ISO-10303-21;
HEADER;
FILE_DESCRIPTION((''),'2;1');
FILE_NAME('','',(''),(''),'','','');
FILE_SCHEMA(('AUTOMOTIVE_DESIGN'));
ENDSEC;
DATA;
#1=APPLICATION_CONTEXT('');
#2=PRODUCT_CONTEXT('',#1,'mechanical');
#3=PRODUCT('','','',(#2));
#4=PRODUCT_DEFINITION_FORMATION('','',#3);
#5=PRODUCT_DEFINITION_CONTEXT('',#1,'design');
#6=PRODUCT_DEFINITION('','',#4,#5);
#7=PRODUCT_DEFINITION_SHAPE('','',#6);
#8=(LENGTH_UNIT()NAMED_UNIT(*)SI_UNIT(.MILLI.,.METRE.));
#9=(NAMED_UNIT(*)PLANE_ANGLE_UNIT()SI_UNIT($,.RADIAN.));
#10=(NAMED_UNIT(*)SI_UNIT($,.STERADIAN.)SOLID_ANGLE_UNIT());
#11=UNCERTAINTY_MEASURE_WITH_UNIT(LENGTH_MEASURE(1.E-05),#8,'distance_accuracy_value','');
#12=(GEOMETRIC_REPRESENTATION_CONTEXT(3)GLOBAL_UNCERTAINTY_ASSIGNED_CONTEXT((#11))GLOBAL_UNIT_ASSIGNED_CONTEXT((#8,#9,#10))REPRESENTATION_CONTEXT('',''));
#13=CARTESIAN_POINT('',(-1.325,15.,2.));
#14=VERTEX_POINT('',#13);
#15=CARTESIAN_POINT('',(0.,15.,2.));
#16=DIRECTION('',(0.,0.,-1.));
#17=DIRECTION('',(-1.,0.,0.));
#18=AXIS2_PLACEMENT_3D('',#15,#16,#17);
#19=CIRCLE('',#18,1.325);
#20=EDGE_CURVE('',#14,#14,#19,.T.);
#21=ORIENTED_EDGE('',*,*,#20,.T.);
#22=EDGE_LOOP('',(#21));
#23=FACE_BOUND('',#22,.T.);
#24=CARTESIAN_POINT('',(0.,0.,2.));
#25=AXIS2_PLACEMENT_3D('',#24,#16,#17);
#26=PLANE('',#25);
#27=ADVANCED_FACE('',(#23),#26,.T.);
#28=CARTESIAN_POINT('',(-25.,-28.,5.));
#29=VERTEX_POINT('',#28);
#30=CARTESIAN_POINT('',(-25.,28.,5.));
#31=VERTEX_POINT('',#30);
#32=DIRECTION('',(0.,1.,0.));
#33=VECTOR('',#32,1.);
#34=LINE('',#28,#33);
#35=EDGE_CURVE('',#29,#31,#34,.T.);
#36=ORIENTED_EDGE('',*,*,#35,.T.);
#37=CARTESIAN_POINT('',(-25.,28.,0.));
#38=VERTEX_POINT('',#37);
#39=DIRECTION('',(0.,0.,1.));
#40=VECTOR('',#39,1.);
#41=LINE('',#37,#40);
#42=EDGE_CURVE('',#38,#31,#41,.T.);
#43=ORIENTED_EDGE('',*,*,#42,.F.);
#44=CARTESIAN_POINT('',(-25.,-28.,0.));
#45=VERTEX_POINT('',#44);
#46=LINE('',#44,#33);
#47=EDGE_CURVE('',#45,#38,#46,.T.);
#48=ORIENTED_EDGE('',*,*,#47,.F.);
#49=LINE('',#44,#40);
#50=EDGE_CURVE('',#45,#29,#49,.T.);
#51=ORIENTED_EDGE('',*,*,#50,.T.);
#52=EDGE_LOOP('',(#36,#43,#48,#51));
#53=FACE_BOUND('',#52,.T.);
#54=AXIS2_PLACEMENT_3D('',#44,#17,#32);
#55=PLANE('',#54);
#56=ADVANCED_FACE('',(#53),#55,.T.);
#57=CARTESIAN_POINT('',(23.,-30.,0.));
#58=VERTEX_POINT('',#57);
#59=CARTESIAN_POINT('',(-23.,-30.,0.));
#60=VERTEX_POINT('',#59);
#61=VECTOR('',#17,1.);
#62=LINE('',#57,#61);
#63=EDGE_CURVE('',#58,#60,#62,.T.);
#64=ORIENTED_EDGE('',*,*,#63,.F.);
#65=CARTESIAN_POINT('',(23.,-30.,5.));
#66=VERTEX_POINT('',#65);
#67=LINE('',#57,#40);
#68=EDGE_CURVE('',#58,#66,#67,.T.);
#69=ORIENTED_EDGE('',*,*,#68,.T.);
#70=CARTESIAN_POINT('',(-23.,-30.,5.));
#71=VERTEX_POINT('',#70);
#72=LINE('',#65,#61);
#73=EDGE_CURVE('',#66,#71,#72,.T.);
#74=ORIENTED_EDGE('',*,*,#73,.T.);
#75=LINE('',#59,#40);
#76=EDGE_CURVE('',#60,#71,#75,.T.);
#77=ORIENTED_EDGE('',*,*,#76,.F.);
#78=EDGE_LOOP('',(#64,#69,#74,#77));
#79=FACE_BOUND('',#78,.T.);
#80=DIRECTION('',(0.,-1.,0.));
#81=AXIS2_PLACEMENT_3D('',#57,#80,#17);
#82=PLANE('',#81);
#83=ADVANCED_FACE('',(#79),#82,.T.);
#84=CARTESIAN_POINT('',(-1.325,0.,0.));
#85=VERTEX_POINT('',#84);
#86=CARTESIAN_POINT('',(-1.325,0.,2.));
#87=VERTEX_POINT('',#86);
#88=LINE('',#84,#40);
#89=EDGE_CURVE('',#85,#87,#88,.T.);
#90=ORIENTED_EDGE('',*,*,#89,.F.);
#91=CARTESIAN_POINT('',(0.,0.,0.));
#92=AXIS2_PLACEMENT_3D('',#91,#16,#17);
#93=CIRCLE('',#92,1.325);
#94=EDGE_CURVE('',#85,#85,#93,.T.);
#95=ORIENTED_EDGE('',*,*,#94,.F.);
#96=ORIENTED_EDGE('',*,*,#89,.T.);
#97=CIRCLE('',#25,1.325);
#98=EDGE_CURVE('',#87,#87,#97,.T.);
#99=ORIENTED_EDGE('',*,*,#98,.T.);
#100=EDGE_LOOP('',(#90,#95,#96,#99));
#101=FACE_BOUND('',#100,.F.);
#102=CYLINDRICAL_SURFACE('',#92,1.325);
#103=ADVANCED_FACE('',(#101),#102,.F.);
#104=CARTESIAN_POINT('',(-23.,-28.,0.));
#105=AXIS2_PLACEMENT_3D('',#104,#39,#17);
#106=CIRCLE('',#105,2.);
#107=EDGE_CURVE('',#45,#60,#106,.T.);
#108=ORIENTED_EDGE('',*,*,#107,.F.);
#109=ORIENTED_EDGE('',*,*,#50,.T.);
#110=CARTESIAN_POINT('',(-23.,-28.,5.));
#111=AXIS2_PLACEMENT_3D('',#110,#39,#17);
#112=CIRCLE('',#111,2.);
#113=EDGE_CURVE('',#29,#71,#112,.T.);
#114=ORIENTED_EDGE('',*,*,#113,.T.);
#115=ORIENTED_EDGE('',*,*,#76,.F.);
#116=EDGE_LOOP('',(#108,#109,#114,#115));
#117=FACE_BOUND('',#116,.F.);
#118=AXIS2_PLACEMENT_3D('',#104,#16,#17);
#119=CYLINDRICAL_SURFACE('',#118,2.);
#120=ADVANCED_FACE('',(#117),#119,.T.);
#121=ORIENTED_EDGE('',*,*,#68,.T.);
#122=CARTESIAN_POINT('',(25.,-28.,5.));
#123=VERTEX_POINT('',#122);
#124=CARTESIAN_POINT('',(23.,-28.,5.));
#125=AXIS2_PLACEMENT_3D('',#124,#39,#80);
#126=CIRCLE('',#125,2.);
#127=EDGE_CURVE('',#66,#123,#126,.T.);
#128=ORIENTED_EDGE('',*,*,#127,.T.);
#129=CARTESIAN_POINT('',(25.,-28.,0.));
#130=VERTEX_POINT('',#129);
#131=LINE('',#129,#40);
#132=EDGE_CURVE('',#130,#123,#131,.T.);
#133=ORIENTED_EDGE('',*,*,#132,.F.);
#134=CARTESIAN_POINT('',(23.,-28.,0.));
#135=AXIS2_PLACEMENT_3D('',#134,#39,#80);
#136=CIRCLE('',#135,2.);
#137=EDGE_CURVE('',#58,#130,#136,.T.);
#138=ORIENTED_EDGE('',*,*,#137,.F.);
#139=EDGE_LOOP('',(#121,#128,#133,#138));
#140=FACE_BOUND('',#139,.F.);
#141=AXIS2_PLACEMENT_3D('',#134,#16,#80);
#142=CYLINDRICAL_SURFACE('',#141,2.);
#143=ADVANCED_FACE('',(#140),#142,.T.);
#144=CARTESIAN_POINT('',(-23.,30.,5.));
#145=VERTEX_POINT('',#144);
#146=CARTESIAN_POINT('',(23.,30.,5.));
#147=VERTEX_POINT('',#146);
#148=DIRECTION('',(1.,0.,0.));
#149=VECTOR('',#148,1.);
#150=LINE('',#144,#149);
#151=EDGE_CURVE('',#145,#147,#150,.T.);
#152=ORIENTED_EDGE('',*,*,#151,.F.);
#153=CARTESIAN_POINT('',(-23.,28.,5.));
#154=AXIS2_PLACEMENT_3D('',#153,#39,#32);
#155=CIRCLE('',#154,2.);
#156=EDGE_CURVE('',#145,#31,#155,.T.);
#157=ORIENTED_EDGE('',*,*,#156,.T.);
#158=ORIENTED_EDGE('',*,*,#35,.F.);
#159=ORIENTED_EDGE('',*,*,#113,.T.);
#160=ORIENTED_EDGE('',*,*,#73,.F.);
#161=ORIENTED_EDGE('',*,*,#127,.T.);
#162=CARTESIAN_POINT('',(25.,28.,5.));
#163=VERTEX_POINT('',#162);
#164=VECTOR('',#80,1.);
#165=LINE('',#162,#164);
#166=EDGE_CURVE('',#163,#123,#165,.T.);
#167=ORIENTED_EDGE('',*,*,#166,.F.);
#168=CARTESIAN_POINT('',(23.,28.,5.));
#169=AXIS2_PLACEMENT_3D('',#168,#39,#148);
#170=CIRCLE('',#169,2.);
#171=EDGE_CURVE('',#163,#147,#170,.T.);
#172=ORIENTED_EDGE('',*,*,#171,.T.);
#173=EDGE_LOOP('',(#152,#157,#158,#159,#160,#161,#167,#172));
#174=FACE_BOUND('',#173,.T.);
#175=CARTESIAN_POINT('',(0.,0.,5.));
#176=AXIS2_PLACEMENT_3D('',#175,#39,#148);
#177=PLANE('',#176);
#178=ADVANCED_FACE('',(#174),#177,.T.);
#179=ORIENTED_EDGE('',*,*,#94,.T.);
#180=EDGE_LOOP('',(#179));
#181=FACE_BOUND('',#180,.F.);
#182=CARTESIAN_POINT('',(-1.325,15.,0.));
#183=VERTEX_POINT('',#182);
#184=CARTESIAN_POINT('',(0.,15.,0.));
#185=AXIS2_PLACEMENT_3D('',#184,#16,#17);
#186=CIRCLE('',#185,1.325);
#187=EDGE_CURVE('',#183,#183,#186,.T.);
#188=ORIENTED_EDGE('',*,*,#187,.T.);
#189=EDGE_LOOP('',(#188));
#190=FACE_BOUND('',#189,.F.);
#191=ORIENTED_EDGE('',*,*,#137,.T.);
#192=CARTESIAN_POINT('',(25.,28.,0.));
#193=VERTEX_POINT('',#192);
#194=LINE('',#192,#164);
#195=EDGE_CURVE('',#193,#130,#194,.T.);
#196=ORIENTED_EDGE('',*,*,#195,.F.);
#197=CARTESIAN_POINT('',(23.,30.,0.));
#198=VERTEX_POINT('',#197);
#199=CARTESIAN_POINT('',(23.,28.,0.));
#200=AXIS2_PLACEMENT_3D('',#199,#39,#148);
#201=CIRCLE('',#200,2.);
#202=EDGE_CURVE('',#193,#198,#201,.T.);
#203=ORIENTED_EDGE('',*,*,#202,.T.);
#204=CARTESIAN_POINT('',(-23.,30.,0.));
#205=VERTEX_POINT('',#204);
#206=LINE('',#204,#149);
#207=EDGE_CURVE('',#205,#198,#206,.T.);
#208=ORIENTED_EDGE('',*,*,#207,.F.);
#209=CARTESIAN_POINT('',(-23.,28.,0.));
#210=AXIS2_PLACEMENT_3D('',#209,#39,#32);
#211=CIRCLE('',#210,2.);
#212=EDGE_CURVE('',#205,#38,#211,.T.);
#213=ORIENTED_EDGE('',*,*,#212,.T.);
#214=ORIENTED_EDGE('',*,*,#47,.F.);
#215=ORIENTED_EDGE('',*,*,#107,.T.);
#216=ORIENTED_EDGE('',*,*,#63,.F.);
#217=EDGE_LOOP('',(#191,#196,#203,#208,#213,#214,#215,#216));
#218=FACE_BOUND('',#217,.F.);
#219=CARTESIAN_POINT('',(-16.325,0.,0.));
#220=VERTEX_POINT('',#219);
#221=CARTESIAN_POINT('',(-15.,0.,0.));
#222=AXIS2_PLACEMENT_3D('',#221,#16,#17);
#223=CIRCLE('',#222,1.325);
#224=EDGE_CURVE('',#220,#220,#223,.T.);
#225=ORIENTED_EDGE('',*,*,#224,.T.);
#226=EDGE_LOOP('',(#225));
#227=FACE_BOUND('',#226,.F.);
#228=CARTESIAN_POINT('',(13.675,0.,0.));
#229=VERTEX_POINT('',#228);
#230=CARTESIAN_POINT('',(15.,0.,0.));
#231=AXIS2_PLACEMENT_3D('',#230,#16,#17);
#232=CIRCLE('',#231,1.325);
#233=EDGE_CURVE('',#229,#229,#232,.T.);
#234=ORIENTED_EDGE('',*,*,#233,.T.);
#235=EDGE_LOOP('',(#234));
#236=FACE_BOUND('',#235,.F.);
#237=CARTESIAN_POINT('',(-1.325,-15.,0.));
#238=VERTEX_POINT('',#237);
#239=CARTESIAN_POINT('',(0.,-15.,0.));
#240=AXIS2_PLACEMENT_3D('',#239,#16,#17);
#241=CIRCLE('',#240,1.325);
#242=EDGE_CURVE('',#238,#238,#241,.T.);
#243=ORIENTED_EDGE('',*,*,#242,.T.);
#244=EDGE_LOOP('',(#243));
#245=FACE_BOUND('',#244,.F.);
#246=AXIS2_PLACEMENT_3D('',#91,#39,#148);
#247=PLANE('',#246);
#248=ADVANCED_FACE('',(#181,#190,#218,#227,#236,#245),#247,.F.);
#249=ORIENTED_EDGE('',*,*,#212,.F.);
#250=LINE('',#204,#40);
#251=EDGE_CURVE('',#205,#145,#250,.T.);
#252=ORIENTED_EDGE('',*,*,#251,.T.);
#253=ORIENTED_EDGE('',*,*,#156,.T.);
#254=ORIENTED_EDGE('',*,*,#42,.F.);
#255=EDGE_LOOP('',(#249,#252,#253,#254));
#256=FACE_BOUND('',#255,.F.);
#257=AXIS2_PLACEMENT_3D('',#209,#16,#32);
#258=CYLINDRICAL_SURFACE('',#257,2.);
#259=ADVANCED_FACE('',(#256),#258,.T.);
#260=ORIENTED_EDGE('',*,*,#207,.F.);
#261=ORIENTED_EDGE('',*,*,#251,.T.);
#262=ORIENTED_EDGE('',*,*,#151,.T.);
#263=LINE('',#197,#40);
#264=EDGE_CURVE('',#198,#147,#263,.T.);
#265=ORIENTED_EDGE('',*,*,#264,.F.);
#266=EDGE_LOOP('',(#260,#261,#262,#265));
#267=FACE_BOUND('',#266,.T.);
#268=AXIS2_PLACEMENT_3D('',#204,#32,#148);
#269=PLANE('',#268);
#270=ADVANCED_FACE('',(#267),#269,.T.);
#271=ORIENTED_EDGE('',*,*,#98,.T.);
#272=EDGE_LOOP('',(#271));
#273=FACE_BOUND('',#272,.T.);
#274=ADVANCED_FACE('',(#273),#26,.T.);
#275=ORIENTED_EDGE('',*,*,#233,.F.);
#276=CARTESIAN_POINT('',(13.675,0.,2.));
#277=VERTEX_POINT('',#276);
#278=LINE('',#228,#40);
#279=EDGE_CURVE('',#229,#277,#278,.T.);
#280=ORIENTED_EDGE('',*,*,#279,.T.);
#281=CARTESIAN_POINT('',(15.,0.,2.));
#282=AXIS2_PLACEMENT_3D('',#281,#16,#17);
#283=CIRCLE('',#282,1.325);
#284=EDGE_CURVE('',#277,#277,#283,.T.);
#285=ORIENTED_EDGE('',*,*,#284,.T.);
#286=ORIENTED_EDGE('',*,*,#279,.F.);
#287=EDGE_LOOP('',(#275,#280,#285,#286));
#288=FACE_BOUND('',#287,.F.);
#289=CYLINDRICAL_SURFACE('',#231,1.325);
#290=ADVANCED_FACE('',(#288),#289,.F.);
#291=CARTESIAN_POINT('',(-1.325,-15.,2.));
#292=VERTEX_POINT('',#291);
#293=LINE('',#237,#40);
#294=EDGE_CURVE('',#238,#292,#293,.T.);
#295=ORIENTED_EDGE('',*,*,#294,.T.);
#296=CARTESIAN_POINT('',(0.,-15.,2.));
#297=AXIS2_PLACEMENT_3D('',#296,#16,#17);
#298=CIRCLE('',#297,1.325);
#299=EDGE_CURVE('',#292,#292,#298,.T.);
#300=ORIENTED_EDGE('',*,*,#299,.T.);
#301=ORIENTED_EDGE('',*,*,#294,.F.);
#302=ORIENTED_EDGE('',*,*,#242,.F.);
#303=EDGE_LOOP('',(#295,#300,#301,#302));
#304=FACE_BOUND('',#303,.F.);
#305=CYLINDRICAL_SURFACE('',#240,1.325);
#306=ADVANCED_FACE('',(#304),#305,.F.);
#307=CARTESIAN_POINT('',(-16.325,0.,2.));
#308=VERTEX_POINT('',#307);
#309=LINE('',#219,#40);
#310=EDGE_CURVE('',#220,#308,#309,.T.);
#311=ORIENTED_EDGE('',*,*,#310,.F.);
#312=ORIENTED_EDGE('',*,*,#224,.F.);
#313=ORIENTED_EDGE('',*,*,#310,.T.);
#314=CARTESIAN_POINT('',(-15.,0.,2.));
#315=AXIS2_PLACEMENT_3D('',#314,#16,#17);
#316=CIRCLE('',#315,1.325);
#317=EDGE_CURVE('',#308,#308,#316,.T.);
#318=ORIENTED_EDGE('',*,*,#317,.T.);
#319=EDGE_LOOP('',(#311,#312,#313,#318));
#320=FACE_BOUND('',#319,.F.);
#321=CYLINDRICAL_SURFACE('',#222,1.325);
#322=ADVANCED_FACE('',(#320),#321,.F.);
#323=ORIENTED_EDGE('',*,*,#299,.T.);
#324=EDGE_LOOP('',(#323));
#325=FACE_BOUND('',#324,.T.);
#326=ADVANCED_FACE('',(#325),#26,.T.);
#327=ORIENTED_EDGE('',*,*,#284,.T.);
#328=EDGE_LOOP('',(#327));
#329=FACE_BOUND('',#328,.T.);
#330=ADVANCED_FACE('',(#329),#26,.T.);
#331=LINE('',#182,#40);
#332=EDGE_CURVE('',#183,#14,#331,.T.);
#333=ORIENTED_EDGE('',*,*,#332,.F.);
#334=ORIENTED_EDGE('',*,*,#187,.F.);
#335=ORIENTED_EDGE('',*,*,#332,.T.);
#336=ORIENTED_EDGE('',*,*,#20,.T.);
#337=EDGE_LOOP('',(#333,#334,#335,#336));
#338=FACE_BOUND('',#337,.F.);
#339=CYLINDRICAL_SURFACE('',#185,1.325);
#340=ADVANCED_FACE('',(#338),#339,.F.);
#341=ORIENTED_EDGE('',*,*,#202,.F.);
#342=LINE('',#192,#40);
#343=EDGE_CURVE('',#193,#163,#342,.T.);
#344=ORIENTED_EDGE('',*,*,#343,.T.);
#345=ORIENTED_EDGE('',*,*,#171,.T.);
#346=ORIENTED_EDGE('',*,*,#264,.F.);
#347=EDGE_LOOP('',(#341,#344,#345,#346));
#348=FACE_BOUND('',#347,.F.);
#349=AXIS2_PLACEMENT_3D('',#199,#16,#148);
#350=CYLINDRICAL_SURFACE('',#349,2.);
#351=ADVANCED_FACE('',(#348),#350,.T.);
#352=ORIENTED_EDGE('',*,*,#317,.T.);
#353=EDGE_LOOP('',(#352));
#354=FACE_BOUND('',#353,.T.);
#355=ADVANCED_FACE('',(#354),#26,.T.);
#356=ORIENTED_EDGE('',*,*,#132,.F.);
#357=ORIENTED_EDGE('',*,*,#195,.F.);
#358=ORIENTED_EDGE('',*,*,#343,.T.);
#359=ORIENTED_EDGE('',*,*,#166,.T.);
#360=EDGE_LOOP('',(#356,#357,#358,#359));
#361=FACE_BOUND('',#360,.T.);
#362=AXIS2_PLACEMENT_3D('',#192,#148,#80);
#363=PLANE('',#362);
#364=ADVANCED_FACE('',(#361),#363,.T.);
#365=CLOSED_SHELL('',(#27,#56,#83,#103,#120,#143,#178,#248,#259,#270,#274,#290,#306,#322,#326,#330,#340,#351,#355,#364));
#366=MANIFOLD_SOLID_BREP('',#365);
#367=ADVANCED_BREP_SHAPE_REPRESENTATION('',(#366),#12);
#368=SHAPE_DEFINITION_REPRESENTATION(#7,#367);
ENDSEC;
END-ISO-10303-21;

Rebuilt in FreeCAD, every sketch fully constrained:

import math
import FreeCAD as App
import Part
import Sketcher

V = App.Vector
Q = App.Units.Quantity

doc = App.newDocument("Part")
params = doc.addObject("Spreadsheet::Sheet", "Params")
for row, (alias, value) in enumerate([
    ("sketch1_radius", "2 mm"),
    ("pad1_length", "5 mm"),
    ("sketch2_diameter", "2.65 mm"),
    ("pocket1_length", "2 mm"),
], start=1):
    params.set(f"A{row}", alias)
    params.set(f"B{row}", "=" + value)
    params.setAlias(f"B{row}", alias)

body = doc.addObject("PartDesign::Body", "Body")

# Sketch on XY plane
sketch1 = doc.addObject("Sketcher::SketchObject", "Sketch")
body.addObject(sketch1)
sketch1.AttachmentSupport = (doc.XY_Plane, [""])
sketch1.MapMode = "FlatFace"
sketch1.addGeometry([
    Part.LineSegment(V(23, 30, 0), V(-23, 30, 0)),  # 0
    Part.ArcOfCircle(Part.Circle(V(-23, 28, 0), V(0, 0, 1), 2), math.radians(90), math.radians(180)),  # 1
    Part.LineSegment(V(-25, 28, 0), V(-25, -28, 0)),  # 2
    Part.ArcOfCircle(Part.Circle(V(-23, -28, 0), V(0, 0, 1), 2), math.radians(180), math.radians(270)),  # 3
    Part.LineSegment(V(-23, -30, 0), V(23, -30, 0)),  # 4
    Part.ArcOfCircle(Part.Circle(V(23, -28, 0), V(0, 0, 1), 2), math.radians(-90), math.radians(0)),  # 5
    Part.LineSegment(V(25, -28, 0), V(25, 28, 0)),  # 6
    Part.ArcOfCircle(Part.Circle(V(23, 28, 0), V(0, 0, 1), 2), math.radians(0), math.radians(90)),  # 7
], False)
sketch1.addConstraint([
    Sketcher.Constraint("Tangent", 0, 2, 1, 1),
    Sketcher.Constraint("Tangent", 1, 2, 2, 1),
    Sketcher.Constraint("Tangent", 2, 2, 3, 1),
    Sketcher.Constraint("Tangent", 3, 2, 4, 1),
    Sketcher.Constraint("Tangent", 4, 2, 5, 1),
    Sketcher.Constraint("Tangent", 5, 2, 6, 1),
    Sketcher.Constraint("Tangent", 6, 2, 7, 1),
    Sketcher.Constraint("Tangent", 7, 2, 0, 1),
    Sketcher.Constraint("Horizontal", 0),
    Sketcher.Constraint("Vertical", 2),
    Sketcher.Constraint("Horizontal", 4),
    Sketcher.Constraint("Vertical", 6),
    Sketcher.Constraint("Equal", 1, 3),
    Sketcher.Constraint("Equal", 3, 5),
    Sketcher.Constraint("Equal", 5, 7),
    Sketcher.Constraint("Symmetric", 1, 3, 5, 3, -1, 1),
    Sketcher.Constraint("Radius", 1, Q("2 mm")),
    Sketcher.Constraint("DistanceY", -1, 1, 0, 2, Q("30 mm")),
    Sketcher.Constraint("DistanceX", 1, 2, -1, 1, Q("25 mm")),
])
sketch1.setExpression("Constraints[16]", "Params.sketch1_radius")
pad1 = doc.addObject("PartDesign::Pad", "Pad")
body.addObject(pad1)
pad1.Profile = sketch1
pad1.setExpression("Length", "Params.pad1_length")

# Sketch on XY plane
sketch2 = doc.addObject("Sketcher::SketchObject", "Sketch001")
body.addObject(sketch2)
sketch2.AttachmentSupport = (doc.XY_Plane, [""])
sketch2.MapMode = "FlatFace"
sketch2.addGeometry([
    Part.Circle(V(0, -15, 0), V(0, 0, 1), 1.3),  # 0
    Part.Circle(V(-15, 0, 0), V(0, 0, 1), 1.3),  # 1
    Part.Circle(V(0, 15, 0), V(0, 0, 1), 1.3),  # 2
    Part.Circle(V(15, 0, 0), V(0, 0, 1), 1.3),  # 3
    Part.Circle(V(0, 0, 0), V(0, 0, 1), 1.3),  # 4
], False)
sketch2.addConstraint([
    Sketcher.Constraint("Coincident", 4, 3, -1, 1),
    Sketcher.Constraint("Equal", 0, 1),
    Sketcher.Constraint("Equal", 1, 2),
    Sketcher.Constraint("Equal", 2, 3),
    Sketcher.Constraint("Equal", 3, 4),
    Sketcher.Constraint("Symmetric", 0, 3, 2, 3, -1, 1),
    Sketcher.Constraint("Symmetric", 1, 3, 3, 3, -1, 1),
    Sketcher.Constraint("PointOnObject", 0, 3, -2),
    Sketcher.Constraint("PointOnObject", 1, 3, -1),
    Sketcher.Constraint("Diameter", 0, Q("2.65 mm")),
    Sketcher.Constraint("DistanceY", 0, 3, -1, 1, Q("15 mm")),
    Sketcher.Constraint("DistanceX", 1, 3, -1, 1, Q("15 mm")),
])
sketch2.setExpression("Constraints[9]", "Params.sketch2_diameter")
pocket1 = doc.addObject("PartDesign::Pocket", "Pocket")
body.addObject(pocket1)
pocket1.Profile = sketch2
pocket1.setExpression("Length", "Params.pocket1_length")
pocket1.Reversed = True

doc.recompute()
